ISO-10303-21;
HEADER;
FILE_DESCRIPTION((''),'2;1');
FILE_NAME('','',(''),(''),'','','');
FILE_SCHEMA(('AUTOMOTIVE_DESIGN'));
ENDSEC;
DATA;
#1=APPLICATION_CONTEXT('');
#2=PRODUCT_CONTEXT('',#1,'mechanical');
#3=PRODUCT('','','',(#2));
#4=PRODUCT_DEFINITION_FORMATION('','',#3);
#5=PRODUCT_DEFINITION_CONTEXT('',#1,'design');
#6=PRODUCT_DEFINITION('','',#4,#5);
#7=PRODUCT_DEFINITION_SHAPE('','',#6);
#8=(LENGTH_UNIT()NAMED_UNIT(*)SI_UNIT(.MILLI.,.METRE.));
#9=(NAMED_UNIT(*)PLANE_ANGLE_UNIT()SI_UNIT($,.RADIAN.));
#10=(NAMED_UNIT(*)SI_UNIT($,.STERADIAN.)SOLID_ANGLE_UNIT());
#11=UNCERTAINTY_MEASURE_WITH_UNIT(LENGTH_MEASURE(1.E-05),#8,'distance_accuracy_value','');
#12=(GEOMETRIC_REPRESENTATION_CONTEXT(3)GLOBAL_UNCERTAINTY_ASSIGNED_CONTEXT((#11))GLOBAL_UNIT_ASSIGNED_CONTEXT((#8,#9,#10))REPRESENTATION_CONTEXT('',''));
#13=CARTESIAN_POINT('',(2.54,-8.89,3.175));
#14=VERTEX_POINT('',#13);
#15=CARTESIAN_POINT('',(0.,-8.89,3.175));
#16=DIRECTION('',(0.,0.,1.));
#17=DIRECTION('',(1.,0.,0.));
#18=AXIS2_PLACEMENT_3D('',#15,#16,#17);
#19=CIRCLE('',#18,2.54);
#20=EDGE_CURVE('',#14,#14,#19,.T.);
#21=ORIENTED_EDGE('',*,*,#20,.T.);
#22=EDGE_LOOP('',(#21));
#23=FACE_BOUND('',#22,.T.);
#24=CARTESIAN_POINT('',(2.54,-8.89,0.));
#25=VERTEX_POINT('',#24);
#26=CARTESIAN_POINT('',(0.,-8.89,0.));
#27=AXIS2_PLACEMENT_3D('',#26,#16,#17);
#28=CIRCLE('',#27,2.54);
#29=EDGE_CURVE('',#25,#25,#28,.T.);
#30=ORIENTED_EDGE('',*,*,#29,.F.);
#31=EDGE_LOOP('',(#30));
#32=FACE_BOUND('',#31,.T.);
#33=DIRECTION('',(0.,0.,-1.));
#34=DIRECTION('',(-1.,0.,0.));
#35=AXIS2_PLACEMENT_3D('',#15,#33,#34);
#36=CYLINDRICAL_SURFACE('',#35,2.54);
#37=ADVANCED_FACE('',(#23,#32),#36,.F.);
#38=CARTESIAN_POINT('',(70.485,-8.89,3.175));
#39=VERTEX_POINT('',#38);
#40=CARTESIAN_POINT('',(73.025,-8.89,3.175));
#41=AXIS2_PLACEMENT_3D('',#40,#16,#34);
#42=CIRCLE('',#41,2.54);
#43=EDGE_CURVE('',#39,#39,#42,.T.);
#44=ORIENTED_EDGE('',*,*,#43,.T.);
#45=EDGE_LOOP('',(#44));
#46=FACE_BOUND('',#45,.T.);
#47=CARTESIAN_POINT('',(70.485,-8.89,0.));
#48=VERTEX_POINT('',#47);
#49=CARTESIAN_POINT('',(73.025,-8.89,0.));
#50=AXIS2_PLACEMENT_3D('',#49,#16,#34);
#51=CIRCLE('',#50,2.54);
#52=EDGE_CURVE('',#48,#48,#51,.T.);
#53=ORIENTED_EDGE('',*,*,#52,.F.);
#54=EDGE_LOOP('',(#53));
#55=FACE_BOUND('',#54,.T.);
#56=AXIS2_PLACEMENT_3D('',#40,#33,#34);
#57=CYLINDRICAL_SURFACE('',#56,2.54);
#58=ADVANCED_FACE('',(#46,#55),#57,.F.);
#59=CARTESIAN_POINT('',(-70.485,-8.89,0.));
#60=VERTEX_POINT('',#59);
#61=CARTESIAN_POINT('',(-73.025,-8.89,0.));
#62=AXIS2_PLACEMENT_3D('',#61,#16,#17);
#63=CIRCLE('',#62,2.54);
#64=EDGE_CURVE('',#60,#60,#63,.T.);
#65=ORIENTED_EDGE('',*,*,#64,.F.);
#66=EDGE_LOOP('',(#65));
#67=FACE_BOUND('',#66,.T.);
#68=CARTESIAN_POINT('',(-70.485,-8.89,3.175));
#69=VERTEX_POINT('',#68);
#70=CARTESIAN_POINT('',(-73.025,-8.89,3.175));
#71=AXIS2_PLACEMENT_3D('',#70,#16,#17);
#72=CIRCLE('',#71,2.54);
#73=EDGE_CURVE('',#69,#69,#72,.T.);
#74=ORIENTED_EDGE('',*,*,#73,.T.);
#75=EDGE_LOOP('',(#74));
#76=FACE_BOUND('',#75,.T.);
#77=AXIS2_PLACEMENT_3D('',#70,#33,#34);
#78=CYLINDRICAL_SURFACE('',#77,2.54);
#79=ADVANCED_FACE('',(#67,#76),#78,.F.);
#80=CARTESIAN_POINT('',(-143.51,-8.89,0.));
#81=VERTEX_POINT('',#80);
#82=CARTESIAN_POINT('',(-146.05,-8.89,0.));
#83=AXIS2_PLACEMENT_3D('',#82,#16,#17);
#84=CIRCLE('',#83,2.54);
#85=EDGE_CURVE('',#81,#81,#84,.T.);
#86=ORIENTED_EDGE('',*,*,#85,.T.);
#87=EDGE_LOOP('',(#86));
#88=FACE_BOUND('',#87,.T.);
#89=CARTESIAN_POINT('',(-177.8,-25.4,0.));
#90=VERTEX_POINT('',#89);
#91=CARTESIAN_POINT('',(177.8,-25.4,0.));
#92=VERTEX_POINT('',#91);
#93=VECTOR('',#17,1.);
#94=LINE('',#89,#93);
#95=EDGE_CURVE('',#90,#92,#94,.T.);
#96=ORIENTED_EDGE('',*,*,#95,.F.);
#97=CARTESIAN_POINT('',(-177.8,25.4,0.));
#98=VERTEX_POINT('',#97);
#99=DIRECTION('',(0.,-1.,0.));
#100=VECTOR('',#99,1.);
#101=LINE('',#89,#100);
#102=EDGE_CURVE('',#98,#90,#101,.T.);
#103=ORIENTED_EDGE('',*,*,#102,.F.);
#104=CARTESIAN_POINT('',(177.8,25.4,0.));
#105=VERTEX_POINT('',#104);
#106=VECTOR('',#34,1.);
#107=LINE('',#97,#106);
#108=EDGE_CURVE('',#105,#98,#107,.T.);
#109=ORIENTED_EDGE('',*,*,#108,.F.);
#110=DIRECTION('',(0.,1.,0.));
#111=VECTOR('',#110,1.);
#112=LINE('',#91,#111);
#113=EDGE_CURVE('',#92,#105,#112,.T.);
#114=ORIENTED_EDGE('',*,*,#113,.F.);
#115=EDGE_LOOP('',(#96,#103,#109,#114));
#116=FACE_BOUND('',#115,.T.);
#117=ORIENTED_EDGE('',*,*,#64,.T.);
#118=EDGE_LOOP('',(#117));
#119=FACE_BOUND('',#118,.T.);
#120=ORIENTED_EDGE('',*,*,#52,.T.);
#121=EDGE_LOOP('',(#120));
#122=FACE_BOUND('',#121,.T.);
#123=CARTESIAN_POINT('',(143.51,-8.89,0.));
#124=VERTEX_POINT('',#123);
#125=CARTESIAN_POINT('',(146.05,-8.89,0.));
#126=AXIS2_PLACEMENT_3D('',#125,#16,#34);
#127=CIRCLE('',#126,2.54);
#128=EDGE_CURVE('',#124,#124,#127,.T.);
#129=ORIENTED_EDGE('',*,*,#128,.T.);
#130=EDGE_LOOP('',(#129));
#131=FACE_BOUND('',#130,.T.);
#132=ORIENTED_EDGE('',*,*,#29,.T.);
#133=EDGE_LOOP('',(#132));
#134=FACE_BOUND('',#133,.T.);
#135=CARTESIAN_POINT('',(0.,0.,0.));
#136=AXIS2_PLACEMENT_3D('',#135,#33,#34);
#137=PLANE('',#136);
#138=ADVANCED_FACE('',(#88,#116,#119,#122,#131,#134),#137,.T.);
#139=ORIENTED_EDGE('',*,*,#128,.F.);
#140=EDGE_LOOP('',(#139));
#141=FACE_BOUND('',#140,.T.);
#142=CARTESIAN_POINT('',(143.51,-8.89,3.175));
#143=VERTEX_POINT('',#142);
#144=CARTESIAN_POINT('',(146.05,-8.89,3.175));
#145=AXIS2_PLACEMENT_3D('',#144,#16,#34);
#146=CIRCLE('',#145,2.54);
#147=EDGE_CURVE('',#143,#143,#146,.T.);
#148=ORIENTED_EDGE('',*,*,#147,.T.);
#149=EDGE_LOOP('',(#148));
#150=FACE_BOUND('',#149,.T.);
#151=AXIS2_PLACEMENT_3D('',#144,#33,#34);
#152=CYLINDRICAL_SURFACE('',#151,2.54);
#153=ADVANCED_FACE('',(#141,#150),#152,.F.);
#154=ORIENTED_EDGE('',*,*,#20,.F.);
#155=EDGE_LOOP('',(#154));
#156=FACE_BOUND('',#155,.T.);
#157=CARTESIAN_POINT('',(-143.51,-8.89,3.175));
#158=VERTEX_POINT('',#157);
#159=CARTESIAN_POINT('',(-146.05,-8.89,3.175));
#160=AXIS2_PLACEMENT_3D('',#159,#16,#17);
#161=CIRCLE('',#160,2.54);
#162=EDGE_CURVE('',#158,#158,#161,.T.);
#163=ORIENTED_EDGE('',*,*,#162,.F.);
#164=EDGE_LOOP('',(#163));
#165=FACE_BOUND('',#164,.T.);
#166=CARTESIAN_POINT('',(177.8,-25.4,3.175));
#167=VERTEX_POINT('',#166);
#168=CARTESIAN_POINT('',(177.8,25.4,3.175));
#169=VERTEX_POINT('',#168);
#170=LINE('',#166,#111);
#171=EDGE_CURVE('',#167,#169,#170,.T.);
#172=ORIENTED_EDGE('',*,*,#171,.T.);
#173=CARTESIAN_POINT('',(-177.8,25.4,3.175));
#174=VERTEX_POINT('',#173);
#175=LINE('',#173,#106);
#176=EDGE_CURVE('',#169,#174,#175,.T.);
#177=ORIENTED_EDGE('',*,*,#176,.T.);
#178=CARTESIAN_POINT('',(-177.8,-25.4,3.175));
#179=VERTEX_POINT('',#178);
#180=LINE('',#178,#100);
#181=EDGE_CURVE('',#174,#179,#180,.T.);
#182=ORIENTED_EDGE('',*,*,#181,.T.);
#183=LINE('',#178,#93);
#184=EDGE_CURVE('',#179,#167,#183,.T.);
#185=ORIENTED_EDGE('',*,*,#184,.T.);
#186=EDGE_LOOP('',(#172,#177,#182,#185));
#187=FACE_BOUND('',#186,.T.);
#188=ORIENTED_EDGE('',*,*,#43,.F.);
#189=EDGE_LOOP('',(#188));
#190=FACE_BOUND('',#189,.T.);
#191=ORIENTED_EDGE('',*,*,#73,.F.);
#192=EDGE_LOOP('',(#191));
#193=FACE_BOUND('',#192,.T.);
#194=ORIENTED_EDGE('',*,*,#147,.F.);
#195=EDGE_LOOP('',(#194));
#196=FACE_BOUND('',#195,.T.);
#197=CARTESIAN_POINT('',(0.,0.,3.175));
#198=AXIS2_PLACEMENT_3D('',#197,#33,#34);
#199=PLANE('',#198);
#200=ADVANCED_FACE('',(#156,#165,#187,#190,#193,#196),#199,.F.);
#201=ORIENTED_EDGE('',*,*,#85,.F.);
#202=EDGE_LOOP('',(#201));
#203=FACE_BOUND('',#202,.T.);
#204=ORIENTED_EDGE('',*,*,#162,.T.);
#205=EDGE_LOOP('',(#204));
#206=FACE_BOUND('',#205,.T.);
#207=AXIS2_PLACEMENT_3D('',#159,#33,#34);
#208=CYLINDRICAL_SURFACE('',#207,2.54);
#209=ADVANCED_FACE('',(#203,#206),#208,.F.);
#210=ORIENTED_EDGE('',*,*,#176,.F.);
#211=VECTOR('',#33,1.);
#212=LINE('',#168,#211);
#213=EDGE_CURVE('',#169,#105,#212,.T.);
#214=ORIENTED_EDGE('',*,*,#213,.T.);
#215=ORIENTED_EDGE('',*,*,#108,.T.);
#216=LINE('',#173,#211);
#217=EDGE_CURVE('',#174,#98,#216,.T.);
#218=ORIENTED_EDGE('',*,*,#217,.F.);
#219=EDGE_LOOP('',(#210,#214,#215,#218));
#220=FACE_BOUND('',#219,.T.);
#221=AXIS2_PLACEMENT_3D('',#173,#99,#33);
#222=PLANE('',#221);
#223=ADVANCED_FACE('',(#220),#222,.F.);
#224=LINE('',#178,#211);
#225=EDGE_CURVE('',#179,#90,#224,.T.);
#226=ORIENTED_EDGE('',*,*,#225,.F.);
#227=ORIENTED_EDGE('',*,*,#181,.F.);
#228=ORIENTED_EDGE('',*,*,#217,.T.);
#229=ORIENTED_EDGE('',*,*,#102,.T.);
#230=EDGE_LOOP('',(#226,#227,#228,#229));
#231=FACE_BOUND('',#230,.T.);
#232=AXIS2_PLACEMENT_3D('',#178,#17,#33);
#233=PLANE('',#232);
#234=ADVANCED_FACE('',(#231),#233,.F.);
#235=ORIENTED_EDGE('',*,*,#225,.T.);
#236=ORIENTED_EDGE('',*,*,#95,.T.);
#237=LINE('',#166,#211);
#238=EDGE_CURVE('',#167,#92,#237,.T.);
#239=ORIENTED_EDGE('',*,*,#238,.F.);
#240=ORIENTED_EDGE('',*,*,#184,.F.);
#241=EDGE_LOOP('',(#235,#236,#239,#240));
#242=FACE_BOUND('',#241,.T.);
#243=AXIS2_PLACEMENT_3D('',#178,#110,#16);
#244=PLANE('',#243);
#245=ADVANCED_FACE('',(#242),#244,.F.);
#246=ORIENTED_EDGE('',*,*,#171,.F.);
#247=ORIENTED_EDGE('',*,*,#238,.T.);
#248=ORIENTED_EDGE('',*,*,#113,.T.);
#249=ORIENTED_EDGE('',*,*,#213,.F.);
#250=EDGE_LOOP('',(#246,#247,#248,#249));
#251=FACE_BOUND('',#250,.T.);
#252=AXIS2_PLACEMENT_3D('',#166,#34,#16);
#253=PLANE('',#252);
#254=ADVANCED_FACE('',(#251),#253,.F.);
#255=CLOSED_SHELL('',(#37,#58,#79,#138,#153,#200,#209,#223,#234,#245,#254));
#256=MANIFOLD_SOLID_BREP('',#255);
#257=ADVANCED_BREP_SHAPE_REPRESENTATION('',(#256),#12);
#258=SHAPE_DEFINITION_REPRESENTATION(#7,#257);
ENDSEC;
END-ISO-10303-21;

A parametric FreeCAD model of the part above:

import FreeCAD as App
import Part
import Sketcher
Q = App.Units.Quantity


def add_polygon(sketch, points):
    """Adds a closed chain of lines whose ends are joined by coincident constraints."""
    first, n = sketch.GeometryCount, len(points)
    for a, b in zip(points, points[1:] + points[:1]):
        sketch.addGeometry(Part.LineSegment(App.Vector(*a, 0), App.Vector(*b, 0)), False)
    for i in range(n):
        sketch.addConstraint(Sketcher.Constraint("Coincident", first + i, 2, first + (i + 1) % n, 1))

doc = App.newDocument("Part")
body = doc.addObject("PartDesign::Body", "Body")

sketch1 = body.newObject("Sketcher::SketchObject", "Sketch")
sketch1.AttachmentSupport = (doc.getObject("XY_Plane"), [""])
sketch1.MapMode = "FlatFace"
add_polygon(sketch1, [(-177.8, 25.4), (-177.8, -25.4), (177.8, -25.4), (177.8, 25.4)])
sketch1.addGeometry(Part.Circle(App.Vector(-146.1, -8.9, 0), App.Vector(0, 0, 1), 2.5), False)
sketch1.addGeometry(Part.Circle(App.Vector(-73, -8.9, 0), App.Vector(0, 0, 1), 2.5), False)
sketch1.addGeometry(Part.Circle(App.Vector(0, -8.9, 0), App.Vector(0, 0, 1), 2.5), False)
sketch1.addGeometry(Part.Circle(App.Vector(73, -8.9, 0), App.Vector(0, 0, 1), 2.5), False)
sketch1.addGeometry(Part.Circle(App.Vector(146.1, -8.9, 0), App.Vector(0, 0, 1), 2.5), False)
sketch1.addConstraint([
    Sketcher.Constraint("Vertical", 0),
    Sketcher.Constraint("Horizontal", 1),
    Sketcher.Constraint("Vertical", 2),
    Sketcher.Constraint("Horizontal", 3),
    Sketcher.Constraint("Equal", 4, 5),
    Sketcher.Constraint("Equal", 5, 6),
    Sketcher.Constraint("Equal", 6, 7),
    Sketcher.Constraint("Equal", 7, 8),
    Sketcher.Constraint("Symmetric", 0, 2, 2, 2, -1, 1),
    Sketcher.Constraint("Symmetric", 5, 3, 7, 3, -2),
    Sketcher.Constraint("Symmetric", 4, 3, 8, 3, -2),
    Sketcher.Constraint("PointOnObject", 6, 3, -2),
    Sketcher.Constraint("Horizontal", 4, 3, 5, 3),
    Sketcher.Constraint("Horizontal", 5, 3, 6, 3),
    Sketcher.Constraint("Diameter", 4, Q("0.2 in")),
    Sketcher.Constraint("DistanceX", 1, 1, 1, 2, Q("14 in")),
    Sketcher.Constraint("DistanceY", 0, 2, 0, 1, Q("2 in")),
    Sketcher.Constraint("DistanceX", 4, 3, 8, 3, Q("11.5 in")),
    Sketcher.Constraint("DistanceY", 4, 3, -1, 1, Q("0.35 in")),
    Sketcher.Constraint("DistanceX", 5, 3, 7, 3, Q("5.75 in")),
])
pad1 = body.newObject("PartDesign::Pad", "Pad")
pad1.Profile = sketch1
pad1.Length = Q("0.125 in")

doc.recompute()
